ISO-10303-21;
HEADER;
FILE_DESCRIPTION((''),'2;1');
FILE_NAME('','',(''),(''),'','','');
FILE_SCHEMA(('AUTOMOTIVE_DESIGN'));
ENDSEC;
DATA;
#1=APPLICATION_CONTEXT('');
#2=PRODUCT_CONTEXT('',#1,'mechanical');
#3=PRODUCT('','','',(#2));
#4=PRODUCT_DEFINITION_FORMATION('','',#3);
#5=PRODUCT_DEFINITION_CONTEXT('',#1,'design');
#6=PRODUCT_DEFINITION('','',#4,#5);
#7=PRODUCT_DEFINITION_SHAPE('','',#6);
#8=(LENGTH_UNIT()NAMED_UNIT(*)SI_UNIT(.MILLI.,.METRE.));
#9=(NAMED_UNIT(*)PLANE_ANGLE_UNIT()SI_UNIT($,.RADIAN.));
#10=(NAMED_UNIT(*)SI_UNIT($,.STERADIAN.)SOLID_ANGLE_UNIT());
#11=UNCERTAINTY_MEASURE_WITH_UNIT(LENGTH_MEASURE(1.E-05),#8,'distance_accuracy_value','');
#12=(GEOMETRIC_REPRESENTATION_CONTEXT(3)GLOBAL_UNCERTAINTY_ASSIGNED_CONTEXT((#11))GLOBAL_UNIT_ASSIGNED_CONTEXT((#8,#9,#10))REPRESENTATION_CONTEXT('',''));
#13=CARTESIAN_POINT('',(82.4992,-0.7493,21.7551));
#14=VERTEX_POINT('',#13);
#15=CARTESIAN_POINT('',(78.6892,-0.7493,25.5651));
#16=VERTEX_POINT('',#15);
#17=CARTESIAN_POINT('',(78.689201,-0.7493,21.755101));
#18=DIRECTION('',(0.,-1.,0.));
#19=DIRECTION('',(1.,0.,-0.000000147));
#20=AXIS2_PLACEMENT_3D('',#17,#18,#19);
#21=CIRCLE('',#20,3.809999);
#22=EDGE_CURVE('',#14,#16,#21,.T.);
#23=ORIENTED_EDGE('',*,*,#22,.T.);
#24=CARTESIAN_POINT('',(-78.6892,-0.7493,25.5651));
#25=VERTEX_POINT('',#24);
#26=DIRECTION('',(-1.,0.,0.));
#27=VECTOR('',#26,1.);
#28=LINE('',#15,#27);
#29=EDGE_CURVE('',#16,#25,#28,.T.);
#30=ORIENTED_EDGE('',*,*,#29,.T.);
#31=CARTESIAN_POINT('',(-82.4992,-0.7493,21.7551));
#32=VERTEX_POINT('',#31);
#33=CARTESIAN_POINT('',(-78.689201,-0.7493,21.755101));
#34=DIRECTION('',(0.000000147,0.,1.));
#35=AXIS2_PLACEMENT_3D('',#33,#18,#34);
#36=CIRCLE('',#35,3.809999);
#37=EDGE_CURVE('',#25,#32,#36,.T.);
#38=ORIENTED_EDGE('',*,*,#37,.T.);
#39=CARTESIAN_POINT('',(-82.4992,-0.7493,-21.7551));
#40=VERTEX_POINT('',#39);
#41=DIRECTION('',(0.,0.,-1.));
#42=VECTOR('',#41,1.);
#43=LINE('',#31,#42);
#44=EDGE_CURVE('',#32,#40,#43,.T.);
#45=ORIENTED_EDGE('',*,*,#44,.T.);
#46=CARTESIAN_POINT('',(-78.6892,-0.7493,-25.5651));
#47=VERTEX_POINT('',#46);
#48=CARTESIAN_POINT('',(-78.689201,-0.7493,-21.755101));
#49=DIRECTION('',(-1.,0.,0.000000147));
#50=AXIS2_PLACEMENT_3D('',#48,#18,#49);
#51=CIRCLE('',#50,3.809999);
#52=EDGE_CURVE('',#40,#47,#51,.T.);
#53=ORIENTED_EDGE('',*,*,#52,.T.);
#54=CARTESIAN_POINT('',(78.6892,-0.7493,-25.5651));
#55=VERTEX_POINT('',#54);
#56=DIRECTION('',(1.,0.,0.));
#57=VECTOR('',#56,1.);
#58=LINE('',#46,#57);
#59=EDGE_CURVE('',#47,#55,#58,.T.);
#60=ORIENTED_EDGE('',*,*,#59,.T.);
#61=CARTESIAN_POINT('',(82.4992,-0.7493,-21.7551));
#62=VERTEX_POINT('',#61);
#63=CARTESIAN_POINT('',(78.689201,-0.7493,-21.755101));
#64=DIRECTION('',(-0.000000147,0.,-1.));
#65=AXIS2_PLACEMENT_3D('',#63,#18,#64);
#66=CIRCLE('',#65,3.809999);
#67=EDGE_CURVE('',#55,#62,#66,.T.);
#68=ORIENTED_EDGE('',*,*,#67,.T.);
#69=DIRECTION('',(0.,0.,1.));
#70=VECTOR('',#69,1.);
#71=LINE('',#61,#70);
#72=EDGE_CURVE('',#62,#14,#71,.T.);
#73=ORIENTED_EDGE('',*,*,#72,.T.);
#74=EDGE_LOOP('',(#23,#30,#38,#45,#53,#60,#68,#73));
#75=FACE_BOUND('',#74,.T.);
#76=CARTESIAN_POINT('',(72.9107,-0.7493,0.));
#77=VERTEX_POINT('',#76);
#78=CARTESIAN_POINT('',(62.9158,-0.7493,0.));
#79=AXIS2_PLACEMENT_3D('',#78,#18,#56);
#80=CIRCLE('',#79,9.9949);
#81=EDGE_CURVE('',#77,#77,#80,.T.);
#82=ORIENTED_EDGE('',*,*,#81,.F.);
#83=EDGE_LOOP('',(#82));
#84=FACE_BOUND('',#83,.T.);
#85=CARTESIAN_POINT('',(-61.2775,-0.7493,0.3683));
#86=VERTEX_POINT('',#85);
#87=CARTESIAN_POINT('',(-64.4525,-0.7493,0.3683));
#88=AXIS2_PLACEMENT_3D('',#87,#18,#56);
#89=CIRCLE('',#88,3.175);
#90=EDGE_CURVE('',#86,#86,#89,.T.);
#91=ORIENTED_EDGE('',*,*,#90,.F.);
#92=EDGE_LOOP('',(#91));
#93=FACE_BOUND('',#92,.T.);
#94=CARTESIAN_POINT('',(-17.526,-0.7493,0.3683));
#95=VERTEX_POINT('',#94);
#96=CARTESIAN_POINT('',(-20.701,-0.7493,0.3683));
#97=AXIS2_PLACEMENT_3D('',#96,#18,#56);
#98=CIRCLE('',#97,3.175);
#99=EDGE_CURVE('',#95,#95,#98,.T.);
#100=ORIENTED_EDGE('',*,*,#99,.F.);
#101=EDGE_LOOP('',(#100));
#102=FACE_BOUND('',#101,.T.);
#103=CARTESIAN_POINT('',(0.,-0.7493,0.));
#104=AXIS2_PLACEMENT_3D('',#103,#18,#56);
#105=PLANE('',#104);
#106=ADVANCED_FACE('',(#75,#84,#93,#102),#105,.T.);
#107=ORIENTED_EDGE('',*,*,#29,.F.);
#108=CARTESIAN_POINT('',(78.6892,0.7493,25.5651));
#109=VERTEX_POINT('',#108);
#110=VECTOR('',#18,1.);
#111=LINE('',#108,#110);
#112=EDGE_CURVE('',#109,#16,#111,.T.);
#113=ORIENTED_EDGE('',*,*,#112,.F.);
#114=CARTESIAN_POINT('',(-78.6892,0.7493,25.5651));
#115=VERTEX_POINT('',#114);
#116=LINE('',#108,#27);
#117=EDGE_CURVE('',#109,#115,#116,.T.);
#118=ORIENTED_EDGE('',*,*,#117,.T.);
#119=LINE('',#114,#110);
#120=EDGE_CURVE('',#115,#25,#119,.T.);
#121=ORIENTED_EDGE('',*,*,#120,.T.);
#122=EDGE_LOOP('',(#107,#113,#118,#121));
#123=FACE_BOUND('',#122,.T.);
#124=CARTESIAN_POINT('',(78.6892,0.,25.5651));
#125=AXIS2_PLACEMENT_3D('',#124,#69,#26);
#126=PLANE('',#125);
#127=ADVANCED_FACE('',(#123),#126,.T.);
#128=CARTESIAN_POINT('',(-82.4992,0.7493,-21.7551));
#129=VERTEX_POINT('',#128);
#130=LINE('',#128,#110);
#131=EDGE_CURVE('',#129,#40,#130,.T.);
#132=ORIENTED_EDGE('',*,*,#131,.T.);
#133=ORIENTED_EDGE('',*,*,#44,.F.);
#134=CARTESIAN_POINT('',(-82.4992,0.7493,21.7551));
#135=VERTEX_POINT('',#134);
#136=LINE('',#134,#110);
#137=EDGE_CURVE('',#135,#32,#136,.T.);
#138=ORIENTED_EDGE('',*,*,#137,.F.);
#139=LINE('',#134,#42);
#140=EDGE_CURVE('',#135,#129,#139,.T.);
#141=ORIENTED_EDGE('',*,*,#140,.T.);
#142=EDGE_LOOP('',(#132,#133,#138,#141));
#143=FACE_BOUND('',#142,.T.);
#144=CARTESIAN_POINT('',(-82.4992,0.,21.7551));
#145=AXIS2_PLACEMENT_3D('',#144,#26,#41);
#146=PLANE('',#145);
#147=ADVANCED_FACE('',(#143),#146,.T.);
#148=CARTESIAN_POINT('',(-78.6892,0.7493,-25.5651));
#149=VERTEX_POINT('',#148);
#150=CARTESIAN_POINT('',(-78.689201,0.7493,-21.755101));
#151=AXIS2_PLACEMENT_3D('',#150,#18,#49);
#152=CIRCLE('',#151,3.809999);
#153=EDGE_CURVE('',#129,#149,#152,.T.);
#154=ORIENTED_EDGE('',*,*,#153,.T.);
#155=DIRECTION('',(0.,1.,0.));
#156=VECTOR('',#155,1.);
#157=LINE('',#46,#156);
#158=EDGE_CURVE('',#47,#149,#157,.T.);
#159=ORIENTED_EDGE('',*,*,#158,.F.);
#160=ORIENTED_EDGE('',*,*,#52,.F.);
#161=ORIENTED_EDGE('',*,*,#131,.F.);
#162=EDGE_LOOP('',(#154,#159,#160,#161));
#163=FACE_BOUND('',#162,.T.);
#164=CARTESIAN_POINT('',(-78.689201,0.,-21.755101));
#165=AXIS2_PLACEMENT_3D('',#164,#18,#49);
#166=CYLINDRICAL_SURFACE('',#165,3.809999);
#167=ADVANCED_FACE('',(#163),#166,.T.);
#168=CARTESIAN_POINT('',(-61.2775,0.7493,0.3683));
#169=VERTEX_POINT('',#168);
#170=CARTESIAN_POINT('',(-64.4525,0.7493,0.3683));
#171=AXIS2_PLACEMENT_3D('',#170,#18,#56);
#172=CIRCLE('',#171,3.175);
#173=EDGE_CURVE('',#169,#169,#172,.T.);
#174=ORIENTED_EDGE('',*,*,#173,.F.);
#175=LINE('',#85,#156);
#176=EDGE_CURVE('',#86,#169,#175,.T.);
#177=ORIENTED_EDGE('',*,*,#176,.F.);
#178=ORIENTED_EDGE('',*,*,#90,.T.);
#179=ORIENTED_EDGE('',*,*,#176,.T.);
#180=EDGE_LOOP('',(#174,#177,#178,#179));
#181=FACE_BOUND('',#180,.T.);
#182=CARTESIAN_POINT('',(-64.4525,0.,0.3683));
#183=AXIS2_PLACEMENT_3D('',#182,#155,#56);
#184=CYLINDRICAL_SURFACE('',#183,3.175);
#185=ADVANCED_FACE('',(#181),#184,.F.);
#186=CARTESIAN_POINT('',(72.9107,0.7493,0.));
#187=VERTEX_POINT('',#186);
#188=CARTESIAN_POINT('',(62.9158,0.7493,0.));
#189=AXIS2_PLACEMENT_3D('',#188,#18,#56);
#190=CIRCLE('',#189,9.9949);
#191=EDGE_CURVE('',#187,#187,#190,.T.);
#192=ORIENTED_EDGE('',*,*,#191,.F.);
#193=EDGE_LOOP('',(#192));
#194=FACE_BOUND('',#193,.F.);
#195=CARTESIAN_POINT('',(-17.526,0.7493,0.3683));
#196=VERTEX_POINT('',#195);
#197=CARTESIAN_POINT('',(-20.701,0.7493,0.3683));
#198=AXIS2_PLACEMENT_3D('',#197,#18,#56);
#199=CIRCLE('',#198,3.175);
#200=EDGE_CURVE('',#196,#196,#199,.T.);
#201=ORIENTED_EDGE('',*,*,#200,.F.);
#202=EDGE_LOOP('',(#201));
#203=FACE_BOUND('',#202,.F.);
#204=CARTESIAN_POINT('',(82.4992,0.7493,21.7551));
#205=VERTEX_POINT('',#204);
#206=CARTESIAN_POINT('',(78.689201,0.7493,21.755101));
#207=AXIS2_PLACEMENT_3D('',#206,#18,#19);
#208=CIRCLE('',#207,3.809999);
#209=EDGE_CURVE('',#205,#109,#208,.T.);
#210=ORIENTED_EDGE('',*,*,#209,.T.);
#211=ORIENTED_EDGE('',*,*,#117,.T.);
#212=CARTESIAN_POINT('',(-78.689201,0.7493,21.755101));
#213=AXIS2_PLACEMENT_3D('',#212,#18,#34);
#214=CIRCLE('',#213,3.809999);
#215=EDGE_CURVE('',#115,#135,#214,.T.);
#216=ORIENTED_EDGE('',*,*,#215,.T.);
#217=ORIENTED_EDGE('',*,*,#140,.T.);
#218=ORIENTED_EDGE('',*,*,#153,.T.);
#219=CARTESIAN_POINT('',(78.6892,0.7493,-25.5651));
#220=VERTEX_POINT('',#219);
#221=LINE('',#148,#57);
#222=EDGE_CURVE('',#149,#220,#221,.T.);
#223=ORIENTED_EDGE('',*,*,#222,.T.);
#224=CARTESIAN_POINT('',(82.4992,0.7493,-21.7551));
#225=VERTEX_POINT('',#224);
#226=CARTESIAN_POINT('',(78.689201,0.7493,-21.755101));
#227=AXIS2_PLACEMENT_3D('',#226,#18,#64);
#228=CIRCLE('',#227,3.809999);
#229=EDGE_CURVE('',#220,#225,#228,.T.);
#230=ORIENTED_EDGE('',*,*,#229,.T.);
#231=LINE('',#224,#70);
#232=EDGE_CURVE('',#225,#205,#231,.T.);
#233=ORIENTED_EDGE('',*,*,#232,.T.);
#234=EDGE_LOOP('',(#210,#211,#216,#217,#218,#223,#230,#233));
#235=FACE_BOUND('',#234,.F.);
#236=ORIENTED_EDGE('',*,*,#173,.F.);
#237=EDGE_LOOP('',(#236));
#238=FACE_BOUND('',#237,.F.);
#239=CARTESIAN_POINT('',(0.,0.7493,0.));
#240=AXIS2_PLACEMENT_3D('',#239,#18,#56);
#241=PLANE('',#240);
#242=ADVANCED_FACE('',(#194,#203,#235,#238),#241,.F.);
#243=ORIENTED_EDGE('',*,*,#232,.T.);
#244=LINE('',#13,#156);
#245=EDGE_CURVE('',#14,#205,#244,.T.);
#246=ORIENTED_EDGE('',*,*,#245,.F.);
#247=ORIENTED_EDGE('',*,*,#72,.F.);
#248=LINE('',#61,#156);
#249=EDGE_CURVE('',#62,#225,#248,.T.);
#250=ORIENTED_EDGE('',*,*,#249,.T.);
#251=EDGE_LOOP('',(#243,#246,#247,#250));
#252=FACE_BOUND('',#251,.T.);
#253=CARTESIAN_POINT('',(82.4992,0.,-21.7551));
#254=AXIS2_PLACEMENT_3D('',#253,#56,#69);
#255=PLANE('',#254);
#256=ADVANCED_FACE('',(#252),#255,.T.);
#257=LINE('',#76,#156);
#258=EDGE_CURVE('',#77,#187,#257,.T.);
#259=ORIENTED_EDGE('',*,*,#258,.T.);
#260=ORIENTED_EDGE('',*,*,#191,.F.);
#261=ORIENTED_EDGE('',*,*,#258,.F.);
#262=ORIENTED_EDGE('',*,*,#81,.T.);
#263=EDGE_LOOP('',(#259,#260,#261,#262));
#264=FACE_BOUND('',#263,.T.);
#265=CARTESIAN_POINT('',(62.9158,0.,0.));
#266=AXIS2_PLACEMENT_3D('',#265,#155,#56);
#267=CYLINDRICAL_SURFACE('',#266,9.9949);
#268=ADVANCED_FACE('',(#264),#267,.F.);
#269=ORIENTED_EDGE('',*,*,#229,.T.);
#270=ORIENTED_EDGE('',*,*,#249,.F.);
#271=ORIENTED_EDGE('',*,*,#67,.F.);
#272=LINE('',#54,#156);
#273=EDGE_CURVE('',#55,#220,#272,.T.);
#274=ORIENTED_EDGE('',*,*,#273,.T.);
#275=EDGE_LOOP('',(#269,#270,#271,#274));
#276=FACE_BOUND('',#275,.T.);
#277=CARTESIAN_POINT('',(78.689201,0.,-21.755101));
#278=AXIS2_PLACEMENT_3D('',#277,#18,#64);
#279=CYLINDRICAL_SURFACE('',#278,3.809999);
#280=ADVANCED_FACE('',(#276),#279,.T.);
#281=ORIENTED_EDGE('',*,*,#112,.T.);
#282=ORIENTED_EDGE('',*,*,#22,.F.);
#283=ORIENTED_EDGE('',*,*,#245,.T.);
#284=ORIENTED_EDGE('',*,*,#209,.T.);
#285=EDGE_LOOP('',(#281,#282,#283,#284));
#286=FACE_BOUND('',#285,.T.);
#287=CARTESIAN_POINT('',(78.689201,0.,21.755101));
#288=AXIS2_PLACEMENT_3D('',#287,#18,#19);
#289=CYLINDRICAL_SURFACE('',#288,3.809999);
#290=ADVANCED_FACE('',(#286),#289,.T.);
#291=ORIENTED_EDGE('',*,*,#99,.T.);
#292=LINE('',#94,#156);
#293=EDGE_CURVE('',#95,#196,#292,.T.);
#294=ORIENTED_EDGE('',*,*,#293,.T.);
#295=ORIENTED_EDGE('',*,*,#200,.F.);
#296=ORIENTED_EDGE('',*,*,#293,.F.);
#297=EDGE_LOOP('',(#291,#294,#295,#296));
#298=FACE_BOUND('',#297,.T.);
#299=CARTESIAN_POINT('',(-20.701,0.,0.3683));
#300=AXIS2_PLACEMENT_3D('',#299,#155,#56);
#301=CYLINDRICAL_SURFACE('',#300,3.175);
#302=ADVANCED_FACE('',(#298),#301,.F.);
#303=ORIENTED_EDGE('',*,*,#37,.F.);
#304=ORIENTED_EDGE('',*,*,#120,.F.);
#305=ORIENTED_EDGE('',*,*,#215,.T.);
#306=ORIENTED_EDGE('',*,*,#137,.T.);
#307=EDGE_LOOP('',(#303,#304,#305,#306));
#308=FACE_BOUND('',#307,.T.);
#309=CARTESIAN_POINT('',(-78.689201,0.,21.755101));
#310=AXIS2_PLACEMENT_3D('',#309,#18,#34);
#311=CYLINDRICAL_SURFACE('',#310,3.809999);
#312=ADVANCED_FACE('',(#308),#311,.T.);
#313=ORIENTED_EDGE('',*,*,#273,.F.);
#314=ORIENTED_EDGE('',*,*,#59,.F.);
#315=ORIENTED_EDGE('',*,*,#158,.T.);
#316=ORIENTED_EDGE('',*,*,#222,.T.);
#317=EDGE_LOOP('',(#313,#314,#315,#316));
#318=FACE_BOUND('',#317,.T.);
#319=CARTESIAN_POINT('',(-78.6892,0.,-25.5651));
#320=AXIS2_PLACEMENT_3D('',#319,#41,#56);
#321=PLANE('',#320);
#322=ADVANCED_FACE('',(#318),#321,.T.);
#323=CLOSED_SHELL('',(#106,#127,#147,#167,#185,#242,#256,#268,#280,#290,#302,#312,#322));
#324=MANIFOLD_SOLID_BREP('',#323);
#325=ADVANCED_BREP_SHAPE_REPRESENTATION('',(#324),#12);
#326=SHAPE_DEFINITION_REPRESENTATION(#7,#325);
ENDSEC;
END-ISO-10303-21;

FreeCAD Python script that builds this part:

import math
import FreeCAD as App
import Part
import Sketcher

V = App.Vector
Q = App.Units.Quantity

doc = App.newDocument("Part")
params = doc.addObject("Spreadsheet::Sheet", "Params")
for row, (alias, value) in enumerate([
    ("sketch1_diameter", "0.25 in"),
    ("sketch1_radius", "0.15 in"),
    ("sketch1_diameter2", "0.787 in"),
    ("sketch1_width", "6.196 in"),
    ("sketch1_height", "1.713 in"),
    ("pad1_length", "0.059 in"),
], start=1):
    params.set(f"A{row}", alias)
    params.set(f"B{row}", "=" + value)
    params.setAlias(f"B{row}", alias)

body = doc.addObject("PartDesign::Body", "Body")

# Sketch on XZ plane
sketch1 = body.newObject("Sketcher::SketchObject", "Sketch")
sketch1.AttachmentSupport = (doc.getObject("XZ_Plane"), [""])
sketch1.MapMode = "FlatFace"
sketch1.addGeometry(Part.ArcOfCircle(Part.Circle(V(78.7, 21.8, 0), V(0, 0, 1), 3.8), math.radians(0), math.radians(90)), False)
sketch1.addGeometry(Part.LineSegment(V(78.7, 25.6, 0), V(-78.7, 25.6, 0)), False)
sketch1.addGeometry(Part.ArcOfCircle(Part.Circle(V(-78.7, 21.8, 0), V(0, 0, 1), 3.8), math.radians(90), math.radians(180)), False)
sketch1.addGeometry(Part.LineSegment(V(-82.5, 21.8, 0), V(-82.5, -21.8, 0)), False)
sketch1.addGeometry(Part.ArcOfCircle(Part.Circle(V(-78.7, -21.8, 0), V(0, 0, 1), 3.8), math.radians(180), math.radians(270)), False)
sketch1.addGeometry(Part.LineSegment(V(-78.7, -25.6, 0), V(78.7, -25.6, 0)), False)
sketch1.addGeometry(Part.ArcOfCircle(Part.Circle(V(78.7, -21.8, 0), V(0, 0, 1), 3.8), math.radians(-90), math.radians(0)), False)
sketch1.addGeometry(Part.LineSegment(V(82.5, -21.8, 0), V(82.5, 21.8, 0)), False)
sketch1.addGeometry(Part.Circle(V(-64.5, 0.4, 0), V(0, 0, 1), 3.2), False)
sketch1.addGeometry(Part.Circle(V(-20.7, 0.4, 0), V(0, 0, 1), 3.2), False)
sketch1.addGeometry(Part.Circle(V(62.9, 0, 0), V(0, 0, 1), 10), False)
sketch1.addConstraint(Sketcher.Constraint("Tangent", 0, 2, 1, 1))
sketch1.addConstraint(Sketcher.Constraint("Tangent", 1, 2, 2, 1))
sketch1.addConstraint(Sketcher.Constraint("Tangent", 2, 2, 3, 1))
sketch1.addConstraint(Sketcher.Constraint("Tangent", 3, 2, 4, 1))
sketch1.addConstraint(Sketcher.Constraint("Tangent", 4, 2, 5, 1))
sketch1.addConstraint(Sketcher.Constraint("Tangent", 5, 2, 6, 1))
sketch1.addConstraint(Sketcher.Constraint("Tangent", 6, 2, 7, 1))
sketch1.addConstraint(Sketcher.Constraint("Tangent", 7, 2, 0, 1))
sketch1.addConstraint(Sketcher.Constraint("Horizontal", 1))
sketch1.addConstraint(Sketcher.Constraint("Vertical", 3))
sketch1.addConstraint(Sketcher.Constraint("Horizontal", 5))
sketch1.addConstraint(Sketcher.Constraint("Vertical", 7))
sketch1.addConstraint(Sketcher.Constraint("Equal", 0, 2))
sketch1.addConstraint(Sketcher.Constraint("Equal", 2, 4))
sketch1.addConstraint(Sketcher.Constraint("Equal", 4, 6))
sketch1.addConstraint(Sketcher.Constraint("Equal", 8, 9))
sketch1.addConstraint(Sketcher.Constraint("Symmetric", 0, 3, 4, 3, -1, 1))
sketch1.addConstraint(Sketcher.Constraint("PointOnObject", 10, 3, -1))
sketch1.addConstraint(Sketcher.Constraint("Horizontal", 8, 3, 9, 3))
sketch1.addConstraint(Sketcher.Constraint("Diameter", 8, Q("0.25 in")))
sketch1.addConstraint(Sketcher.Constraint("Radius", 0, Q("0.15 in")))
sketch1.addConstraint(Sketcher.Constraint("Diameter", 10, Q("0.787 in")))
sketch1.addConstraint(Sketcher.Constraint("DistanceX", 1, 2, 1, 1, Q("6.196 in")))
sketch1.addConstraint(Sketcher.Constraint("DistanceY", 3, 2, 3, 1, Q("1.713 in")))
sketch1.addConstraint(Sketcher.Constraint("DistanceX", 9, 3, -1, 1, Q("0.815 in")))
sketch1.addConstraint(Sketcher.Constraint("DistanceX", -1, 1, 10, 3, Q("2.477 in")))
sketch1.addConstraint(Sketcher.Constraint("DistanceY", 8, 3, 2, 3, Q("0.842 in")))
sketch1.addConstraint(Sketcher.Constraint("DistanceX", 8, 3, -1, 1, Q("2.5375 in")))
sketch1.setExpression("Constraints[19]", "Params.sketch1_diameter")
sketch1.setExpression("Constraints[20]", "Params.sketch1_radius")
sketch1.setExpression("Constraints[21]", "Params.sketch1_diameter2")
sketch1.setExpression("Constraints[22]", "Params.sketch1_width")
sketch1.setExpression("Constraints[23]", "Params.sketch1_height")
pad1 = body.newObject("PartDesign::Pad", "Pad")
pad1.Profile = sketch1
pad1.setExpression("Length", "Params.pad1_length")
pad1.Midplane = True

doc.recompute()
